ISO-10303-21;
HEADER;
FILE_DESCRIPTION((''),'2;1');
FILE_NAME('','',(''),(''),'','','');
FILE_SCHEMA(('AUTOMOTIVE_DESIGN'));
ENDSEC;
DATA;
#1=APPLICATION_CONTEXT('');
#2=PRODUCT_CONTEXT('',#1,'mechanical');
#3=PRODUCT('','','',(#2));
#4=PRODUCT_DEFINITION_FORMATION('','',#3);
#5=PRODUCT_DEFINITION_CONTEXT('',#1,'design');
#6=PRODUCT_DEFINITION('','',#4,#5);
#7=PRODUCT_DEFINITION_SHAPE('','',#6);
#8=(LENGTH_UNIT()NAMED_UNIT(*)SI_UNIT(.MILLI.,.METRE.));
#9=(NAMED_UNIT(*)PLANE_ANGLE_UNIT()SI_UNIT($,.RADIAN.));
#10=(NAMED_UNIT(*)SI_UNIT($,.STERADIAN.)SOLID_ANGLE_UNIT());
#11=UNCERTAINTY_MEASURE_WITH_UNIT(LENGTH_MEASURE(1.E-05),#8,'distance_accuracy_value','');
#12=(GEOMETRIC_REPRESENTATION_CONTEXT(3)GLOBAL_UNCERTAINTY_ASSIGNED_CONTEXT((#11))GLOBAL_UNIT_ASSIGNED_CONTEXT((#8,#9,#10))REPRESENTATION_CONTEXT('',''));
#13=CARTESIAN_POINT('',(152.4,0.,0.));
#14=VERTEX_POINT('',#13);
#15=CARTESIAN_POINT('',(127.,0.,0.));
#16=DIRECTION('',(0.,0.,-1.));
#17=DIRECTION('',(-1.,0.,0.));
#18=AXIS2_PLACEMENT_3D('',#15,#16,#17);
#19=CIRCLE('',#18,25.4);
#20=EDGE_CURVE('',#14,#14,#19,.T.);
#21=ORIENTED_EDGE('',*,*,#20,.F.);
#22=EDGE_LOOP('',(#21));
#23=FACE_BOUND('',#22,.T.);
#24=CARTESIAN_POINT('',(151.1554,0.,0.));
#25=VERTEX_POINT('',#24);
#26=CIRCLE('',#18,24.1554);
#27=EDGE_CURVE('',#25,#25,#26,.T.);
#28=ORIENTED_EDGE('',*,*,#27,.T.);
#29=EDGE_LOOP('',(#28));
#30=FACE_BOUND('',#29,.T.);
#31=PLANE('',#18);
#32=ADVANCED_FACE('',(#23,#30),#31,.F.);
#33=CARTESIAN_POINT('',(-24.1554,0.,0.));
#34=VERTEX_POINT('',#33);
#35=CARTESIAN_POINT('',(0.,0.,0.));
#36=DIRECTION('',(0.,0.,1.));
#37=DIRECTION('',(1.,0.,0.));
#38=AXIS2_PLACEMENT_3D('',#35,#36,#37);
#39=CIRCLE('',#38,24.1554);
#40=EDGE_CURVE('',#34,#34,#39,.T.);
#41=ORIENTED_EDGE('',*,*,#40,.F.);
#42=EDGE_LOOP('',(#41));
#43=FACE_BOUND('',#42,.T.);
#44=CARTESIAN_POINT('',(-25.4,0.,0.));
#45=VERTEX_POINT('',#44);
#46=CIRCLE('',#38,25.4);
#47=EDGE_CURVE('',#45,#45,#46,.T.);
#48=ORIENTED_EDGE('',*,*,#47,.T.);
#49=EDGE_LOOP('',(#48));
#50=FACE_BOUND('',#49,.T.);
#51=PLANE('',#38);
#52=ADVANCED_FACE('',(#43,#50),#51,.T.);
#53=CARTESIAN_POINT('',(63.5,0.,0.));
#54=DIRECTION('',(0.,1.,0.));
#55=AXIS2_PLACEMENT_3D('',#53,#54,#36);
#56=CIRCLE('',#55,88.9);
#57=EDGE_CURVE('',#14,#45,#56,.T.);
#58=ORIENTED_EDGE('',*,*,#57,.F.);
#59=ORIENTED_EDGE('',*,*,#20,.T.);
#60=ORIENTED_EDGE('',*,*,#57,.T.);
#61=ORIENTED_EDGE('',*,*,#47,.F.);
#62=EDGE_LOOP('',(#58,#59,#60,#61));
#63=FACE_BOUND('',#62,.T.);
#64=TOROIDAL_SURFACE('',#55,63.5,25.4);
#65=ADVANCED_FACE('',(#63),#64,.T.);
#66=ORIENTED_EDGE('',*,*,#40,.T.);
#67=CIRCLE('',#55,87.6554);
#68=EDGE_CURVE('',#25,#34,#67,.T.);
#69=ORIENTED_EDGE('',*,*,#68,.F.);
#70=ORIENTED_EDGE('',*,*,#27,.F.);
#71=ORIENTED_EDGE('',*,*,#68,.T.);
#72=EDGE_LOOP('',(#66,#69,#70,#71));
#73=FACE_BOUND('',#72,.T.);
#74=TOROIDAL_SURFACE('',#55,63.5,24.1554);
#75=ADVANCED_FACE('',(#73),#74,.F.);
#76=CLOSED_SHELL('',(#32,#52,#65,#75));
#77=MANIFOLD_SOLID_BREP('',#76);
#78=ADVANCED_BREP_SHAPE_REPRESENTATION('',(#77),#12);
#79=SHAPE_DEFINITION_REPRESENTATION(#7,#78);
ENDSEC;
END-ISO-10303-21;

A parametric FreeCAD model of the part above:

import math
import FreeCAD as App
import Part
import Sketcher
from FreeCAD import Vector
Q = App.Units.Quantity

doc = App.newDocument("Part")
body = doc.addObject("PartDesign::Body", "Body")

# Sketch on XY plane
sketch1 = body.newObject("Sketcher::SketchObject", "Sketch")
sketch1.AttachmentSupport = (doc.getObject("XY_Plane"), [""])
sketch1.MapMode = "FlatFace"
sketch1.addGeometry(Part.Circle(Vector(0, 0, 0), Vector(0, 0, 1), 25), False)
sketch1.addGeometry(Part.Circle(Vector(0, 0, 0), Vector(0, 0, 1), 24), False)
sketch1.addConstraint(Sketcher.Constraint("Coincident", 0, 3, -1, 1))
sketch1.addConstraint(Sketcher.Constraint("Coincident", 1, 3, -1, 1))
sketch1.addConstraint(Sketcher.Constraint("Diameter", 0, Q("2 in")))
sketch1.addConstraint(Sketcher.Constraint("Diameter", 1, Q("1.902 in")))

# Sketch on XZ plane
sketch2 = body.newObject("Sketcher::SketchObject", "Sketch001")
sketch2.AttachmentSupport = (doc.getObject("XZ_Plane"), [""])
sketch2.MapMode = "FlatFace"
sketch2.addGeometry(Part.ArcOfCircle(Part.Circle(Vector(64, 0, 0), Vector(0, 0, 1), 64), math.radians(180), math.radians(360)), False)
sketch2.addConstraint(Sketcher.Constraint("Coincident", 0, 1, -1, 1))
sketch2.addConstraint(Sketcher.Constraint("PointOnObject", 0, 3, -1))
sketch2.addConstraint(Sketcher.Constraint("PointOnObject", 0, 2, -1))
sketch2.addConstraint(Sketcher.Constraint("Radius", 0, Q("2.5 in")))
doc.recompute()

additivepipe = body.newObject("PartDesign::AdditivePipe", "AdditivePipe")
additivepipe.Profile = sketch1
additivepipe.Spine = (sketch2, ["Edge1"])

doc.recompute()
